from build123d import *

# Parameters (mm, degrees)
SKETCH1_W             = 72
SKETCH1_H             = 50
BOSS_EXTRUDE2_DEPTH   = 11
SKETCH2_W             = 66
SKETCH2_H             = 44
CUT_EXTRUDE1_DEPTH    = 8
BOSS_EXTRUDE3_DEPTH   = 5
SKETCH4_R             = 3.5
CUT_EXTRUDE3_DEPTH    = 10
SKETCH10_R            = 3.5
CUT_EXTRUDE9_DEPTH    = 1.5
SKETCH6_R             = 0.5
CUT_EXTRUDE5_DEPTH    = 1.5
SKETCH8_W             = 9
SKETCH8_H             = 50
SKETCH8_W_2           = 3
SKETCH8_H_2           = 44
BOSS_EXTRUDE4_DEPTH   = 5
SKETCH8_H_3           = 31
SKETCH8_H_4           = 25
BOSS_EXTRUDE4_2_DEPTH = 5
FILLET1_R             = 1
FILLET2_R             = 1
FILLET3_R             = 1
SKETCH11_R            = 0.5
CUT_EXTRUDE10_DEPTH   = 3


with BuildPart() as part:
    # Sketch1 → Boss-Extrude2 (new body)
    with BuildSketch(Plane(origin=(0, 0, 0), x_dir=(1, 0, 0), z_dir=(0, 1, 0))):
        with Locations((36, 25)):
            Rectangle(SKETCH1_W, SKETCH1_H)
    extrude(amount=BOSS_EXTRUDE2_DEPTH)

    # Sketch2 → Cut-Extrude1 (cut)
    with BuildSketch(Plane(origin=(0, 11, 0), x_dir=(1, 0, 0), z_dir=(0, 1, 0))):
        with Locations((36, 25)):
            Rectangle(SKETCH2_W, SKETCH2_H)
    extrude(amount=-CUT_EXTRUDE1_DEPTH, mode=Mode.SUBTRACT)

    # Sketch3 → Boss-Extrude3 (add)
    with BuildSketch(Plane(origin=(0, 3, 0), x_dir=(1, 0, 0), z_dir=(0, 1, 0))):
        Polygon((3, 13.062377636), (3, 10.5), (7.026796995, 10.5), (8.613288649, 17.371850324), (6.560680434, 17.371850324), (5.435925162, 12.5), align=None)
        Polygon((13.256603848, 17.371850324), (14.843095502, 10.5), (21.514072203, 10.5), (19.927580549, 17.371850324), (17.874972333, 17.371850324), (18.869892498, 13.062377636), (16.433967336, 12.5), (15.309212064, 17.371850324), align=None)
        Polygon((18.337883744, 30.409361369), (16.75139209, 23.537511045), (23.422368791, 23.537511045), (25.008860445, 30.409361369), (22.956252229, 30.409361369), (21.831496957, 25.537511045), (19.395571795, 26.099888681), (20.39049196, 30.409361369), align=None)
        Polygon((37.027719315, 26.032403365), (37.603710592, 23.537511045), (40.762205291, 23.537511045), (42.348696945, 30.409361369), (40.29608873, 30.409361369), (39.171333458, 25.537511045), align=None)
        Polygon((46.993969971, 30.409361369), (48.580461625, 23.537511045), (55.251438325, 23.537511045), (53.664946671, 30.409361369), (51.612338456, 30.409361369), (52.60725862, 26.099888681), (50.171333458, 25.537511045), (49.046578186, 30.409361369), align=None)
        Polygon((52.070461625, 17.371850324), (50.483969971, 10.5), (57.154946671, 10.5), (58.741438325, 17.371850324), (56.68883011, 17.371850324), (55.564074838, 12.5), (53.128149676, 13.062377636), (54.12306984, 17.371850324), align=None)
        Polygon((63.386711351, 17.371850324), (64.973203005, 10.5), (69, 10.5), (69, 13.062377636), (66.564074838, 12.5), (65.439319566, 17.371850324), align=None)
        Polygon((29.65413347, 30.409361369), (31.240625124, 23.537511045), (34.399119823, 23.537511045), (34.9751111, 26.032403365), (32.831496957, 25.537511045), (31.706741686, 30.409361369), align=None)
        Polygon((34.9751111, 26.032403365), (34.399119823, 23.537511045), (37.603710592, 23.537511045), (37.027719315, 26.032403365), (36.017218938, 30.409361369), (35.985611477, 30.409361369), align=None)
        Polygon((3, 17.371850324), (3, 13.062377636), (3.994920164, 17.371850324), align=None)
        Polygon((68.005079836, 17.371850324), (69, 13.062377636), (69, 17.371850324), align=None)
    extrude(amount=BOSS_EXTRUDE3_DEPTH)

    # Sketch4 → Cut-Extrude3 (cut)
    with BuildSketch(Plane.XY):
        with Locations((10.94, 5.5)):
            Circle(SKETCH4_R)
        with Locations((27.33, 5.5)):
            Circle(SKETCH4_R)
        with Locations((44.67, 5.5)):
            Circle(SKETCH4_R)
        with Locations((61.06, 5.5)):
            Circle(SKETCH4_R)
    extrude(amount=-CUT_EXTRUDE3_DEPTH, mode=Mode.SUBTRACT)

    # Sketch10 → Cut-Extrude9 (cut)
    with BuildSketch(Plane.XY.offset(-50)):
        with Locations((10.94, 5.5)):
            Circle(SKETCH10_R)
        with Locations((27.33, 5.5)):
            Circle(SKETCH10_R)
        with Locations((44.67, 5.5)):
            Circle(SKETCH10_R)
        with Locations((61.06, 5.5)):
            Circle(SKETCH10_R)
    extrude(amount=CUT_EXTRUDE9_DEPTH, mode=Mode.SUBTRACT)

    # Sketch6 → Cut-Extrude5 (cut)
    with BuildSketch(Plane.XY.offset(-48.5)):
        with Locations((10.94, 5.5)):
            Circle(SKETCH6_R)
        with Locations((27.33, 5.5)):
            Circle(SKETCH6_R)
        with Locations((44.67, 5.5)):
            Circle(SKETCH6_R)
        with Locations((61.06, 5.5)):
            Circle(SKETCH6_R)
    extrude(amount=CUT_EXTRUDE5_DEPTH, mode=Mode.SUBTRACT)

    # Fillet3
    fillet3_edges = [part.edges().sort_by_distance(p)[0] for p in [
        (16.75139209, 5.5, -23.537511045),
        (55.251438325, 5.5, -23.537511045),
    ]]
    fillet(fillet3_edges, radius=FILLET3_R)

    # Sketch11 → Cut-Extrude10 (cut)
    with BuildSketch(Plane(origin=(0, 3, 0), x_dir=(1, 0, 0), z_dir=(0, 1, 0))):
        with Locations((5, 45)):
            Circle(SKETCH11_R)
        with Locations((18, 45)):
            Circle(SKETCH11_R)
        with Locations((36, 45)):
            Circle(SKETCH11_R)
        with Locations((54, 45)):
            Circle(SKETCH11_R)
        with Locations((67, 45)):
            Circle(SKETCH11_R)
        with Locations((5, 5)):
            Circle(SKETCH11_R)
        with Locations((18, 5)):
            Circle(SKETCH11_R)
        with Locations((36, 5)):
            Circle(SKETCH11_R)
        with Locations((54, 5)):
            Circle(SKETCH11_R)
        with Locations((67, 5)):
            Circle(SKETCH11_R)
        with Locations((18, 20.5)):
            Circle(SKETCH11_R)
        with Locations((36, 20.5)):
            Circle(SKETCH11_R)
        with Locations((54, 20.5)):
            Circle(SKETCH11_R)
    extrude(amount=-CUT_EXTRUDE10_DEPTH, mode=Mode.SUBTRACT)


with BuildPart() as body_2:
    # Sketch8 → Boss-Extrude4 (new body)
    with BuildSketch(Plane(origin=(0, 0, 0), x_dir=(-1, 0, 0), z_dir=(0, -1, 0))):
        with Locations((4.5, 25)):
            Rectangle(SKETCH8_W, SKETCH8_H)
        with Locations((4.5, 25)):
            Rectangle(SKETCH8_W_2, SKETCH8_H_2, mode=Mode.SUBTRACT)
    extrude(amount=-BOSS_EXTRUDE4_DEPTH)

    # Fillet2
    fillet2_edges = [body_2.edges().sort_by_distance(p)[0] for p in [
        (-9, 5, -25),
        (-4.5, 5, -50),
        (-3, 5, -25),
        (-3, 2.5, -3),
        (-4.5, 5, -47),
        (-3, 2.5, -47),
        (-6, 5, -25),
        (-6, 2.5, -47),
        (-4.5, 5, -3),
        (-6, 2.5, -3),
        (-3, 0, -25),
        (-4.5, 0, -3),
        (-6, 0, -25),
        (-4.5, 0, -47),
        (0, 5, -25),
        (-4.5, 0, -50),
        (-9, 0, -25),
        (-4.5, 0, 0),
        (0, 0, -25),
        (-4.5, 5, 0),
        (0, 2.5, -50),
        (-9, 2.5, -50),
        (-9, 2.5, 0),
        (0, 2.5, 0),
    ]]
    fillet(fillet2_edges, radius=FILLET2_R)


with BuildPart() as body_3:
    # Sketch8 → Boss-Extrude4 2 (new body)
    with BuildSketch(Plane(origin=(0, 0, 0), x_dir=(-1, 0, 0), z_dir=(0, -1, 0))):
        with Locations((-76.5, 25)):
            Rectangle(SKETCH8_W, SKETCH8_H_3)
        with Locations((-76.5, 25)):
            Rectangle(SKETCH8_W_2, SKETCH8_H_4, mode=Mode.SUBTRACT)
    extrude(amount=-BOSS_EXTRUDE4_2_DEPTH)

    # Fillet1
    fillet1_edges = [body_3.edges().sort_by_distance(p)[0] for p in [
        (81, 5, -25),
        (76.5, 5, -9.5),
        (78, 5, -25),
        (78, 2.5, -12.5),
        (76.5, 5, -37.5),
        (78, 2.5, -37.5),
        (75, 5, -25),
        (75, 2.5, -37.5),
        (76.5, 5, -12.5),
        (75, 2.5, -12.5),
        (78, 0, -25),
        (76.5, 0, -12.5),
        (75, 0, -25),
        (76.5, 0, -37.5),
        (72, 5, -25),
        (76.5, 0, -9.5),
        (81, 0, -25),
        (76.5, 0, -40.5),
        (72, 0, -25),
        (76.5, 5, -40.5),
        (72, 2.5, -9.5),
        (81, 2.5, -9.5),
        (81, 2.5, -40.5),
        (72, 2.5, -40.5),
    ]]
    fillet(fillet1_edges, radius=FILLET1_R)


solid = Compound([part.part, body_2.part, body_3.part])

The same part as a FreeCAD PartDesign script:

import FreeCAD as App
import Part
import Sketcher

V = App.Vector
Q = App.Units.Quantity


def edges_at(feature, points):
    """Names of the edges that pass closest to the given points."""
    edges = feature.Shape.Edges
    near = lambda p: min(range(len(edges)), key=lambda i: edges[i].distToShape(Part.Vertex(*p))[0])
    return sorted({f"Edge{near(p) + 1}" for p in points})

doc = App.newDocument("Part")
body = doc.addObject("PartDesign::Body", "Body")

sketch1 = body.newObject("Sketcher::SketchObject", "Sketch")
sketch1.AttachmentSupport = (doc.getObject("XZ_Plane"), [""])
sketch1.MapMode = "FlatFace"
sketch1.addGeometry([
    Part.LineSegment(V(0, -50, 0), V(0, 0, 0)),
    Part.LineSegment(V(0, 0, 0), V(72, 0, 0)),
    Part.LineSegment(V(72, 0, 0), V(72, -50, 0)),
    Part.LineSegment(V(72, -50, 0), V(0, -50, 0)),
], False)
sketch1.addConstraint([
    Sketcher.Constraint("Coincident", 0, 2, 1, 1),
    Sketcher.Constraint("Coincident", 1, 2, 2, 1),
    Sketcher.Constraint("Coincident", 2, 2, 3, 1),
    Sketcher.Constraint("Coincident", 3, 2, 0, 1),
    Sketcher.Constraint("Vertical", 0),
    Sketcher.Constraint("Horizontal", 1),
    Sketcher.Constraint("Vertical", 2),
    Sketcher.Constraint("Horizontal", 3),
    Sketcher.Constraint("Coincident", 0, 2, -1, 1),
    Sketcher.Constraint("DistanceX", 1, 1, 1, 2, Q("72 mm")),
    Sketcher.Constraint("DistanceY", 0, 1, 0, 2, Q("50 mm")),
])
pad1 = body.newObject("PartDesign::Pad", "Pad")
pad1.Profile = sketch1
pad1.Length = 11
pad1.Reversed = True

sketch2 = body.newObject("Sketcher::SketchObject", "Sketch001")
sketch2.AttachmentSupport = (doc.getObject("XZ_Plane"), [""])
sketch2.MapMode = "FlatFace"
sketch2.AttachmentOffset = App.Placement(V(0, 0, -11), App.Rotation())
sketch2.addGeometry([
    Part.LineSegment(V(3, -47, 0), V(3, -3, 0)),
    Part.LineSegment(V(3, -3, 0), V(69, -3, 0)),
    Part.LineSegment(V(69, -3, 0), V(69, -47, 0)),
    Part.LineSegment(V(69, -47, 0), V(3, -47, 0)),
], False)
sketch2.addConstraint([
    Sketcher.Constraint("Coincident", 0, 2, 1, 1),
    Sketcher.Constraint("Coincident", 1, 2, 2, 1),
    Sketcher.Constraint("Coincident", 2, 2, 3, 1),
    Sketcher.Constraint("Coincident", 3, 2, 0, 1),
    Sketcher.Constraint("Vertical", 0),
    Sketcher.Constraint("Horizontal", 1),
    Sketcher.Constraint("Vertical", 2),
    Sketcher.Constraint("Horizontal", 3),
    Sketcher.Constraint("DistanceX", 1, 1, 1, 2, Q("66 mm")),
    Sketcher.Constraint("DistanceY", 0, 1, 0, 2, Q("44 mm")),
    Sketcher.Constraint("DistanceX", -1, 1, 0, 2, Q("3 mm")),
    Sketcher.Constraint("DistanceY", 0, 2, -1, 1, Q("3 mm")),
])
pocket1 = body.newObject("PartDesign::Pocket", "Pocket")
pocket1.Profile = sketch2
pocket1.Length = 8
pocket1.Reversed = True

sketch3 = body.newObject("Sketcher::SketchObject", "Sketch002")
sketch3.AttachmentSupport = (doc.getObject("XZ_Plane"), [""])
sketch3.MapMode = "FlatFace"
sketch3.AttachmentOffset = App.Placement(V(0, 0, -3), App.Rotation())
sketch3.addGeometry([
    Part.LineSegment(V(3, -13.062378, 0), V(3, -10.5, 0)),
    Part.LineSegment(V(3, -10.5, 0), V(7.026797, -10.5, 0)),
    Part.LineSegment(V(7.026797, -10.5, 0), V(8.613289, -17.37185, 0)),
    Part.LineSegment(V(8.613289, -17.37185, 0), V(6.56068, -17.37185, 0)),
    Part.LineSegment(V(6.56068, -17.37185, 0), V(5.435925, -12.5, 0)),
    Part.LineSegment(V(5.435925, -12.5, 0), V(3, -13.062378, 0)),
    Part.LineSegment(V(13.256604, -17.37185, 0), V(14.843096, -10.5, 0)),
    Part.LineSegment(V(14.843096, -10.5, 0), V(21.514072, -10.5, 0)),
    Part.LineSegment(V(21.514072, -10.5, 0), V(19.927581, -17.37185, 0)),
    Part.LineSegment(V(19.927581, -17.37185, 0), V(17.874972, -17.37185, 0)),
    Part.LineSegment(V(17.874972, -17.37185, 0), V(18.869892, -13.062378, 0)),
    Part.LineSegment(V(18.869892, -13.062378, 0), V(16.433967, -12.5, 0)),
    Part.LineSegment(V(16.433967, -12.5, 0), V(15.309212, -17.37185, 0)),
    Part.LineSegment(V(15.309212, -17.37185, 0), V(13.256604, -17.37185, 0)),
    Part.LineSegment(V(18.337884, -30.409361, 0), V(16.751392, -23.537511, 0)),
    Part.LineSegment(V(16.751392, -23.537511, 0), V(23.422369, -23.537511, 0)),
    Part.LineSegment(V(23.422369, -23.537511, 0), V(25.00886, -30.409361, 0)),
    Part.LineSegment(V(25.00886, -30.409361, 0), V(22.956252, -30.409361, 0)),
    Part.LineSegment(V(22.956252, -30.409361, 0), V(21.831497, -25.537511, 0)),
    Part.LineSegment(V(21.831497, -25.537511, 0), V(19.395572, -26.099889, 0)),
    Part.LineSegment(V(19.395572, -26.099889, 0), V(20.390492, -30.409361, 0)),
    Part.LineSegment(V(20.390492, -30.409361, 0), V(18.337884, -30.409361, 0)),
    Part.LineSegment(V(40.762205, -23.537511, 0), V(42.348697, -30.409361, 0)),
    Part.LineSegment(V(42.348697, -30.409361, 0), V(40.296089, -30.409361, 0)),
    Part.LineSegment(V(40.296089, -30.409361, 0), V(39.171333, -25.537511, 0)),
    Part.LineSegment(V(39.171333, -25.537511, 0), V(37.027719, -26.032403, 0)),
    Part.LineSegment(V(37.027719, -26.032403, 0), V(36.017219, -30.409361, 0)),
    Part.LineSegment(V(36.017219, -30.409361, 0), V(35.985611, -30.409361, 0)),
    Part.LineSegment(V(35.985611, -30.409361, 0), V(34.975111, -26.032403, 0)),
    Part.LineSegment(V(34.975111, -26.032403, 0), V(32.831497, -25.537511, 0)),
    Part.LineSegment(V(32.831497, -25.537511, 0), V(31.706742, -30.409361, 0)),
    Part.LineSegment(V(31.706742, -30.409361, 0), V(29.654133, -30.409361, 0)),
    Part.LineSegment(V(29.654133, -30.409361, 0), V(31.240625, -23.537511, 0)),
    Part.LineSegment(V(31.240625, -23.537511, 0), V(40.762205, -23.537511, 0)),
    Part.LineSegment(V(46.99397, -30.409361, 0), V(48.580462, -23.537511, 0)),
    Part.LineSegment(V(48.580462, -23.537511, 0), V(55.251438, -23.537511, 0)),
    Part.LineSegment(V(55.251438, -23.537511, 0), V(53.664947, -30.409361, 0)),
    Part.LineSegment(V(53.664947, -30.409361, 0), V(51.612338, -30.409361, 0)),
    Part.LineSegment(V(51.612338, -30.409361, 0), V(52.607259, -26.099889, 0)),
    Part.LineSegment(V(52.607259, -26.099889, 0), V(50.171333, -25.537511, 0)),
    Part.LineSegment(V(50.171333, -25.537511, 0), V(49.046578, -30.409361, 0)),
    Part.LineSegment(V(49.046578, -30.409361, 0), V(46.99397, -30.409361, 0)),
    Part.LineSegment(V(52.070462, -17.37185, 0), V(50.48397, -10.5, 0)),
    Part.LineSegment(V(50.48397, -10.5, 0), V(57.154947, -10.5, 0)),
    Part.LineSegment(V(57.154947, -10.5, 0), V(58.741438, -17.37185, 0)),
    Part.LineSegment(V(58.741438, -17.37185, 0), V(56.68883, -17.37185, 0)),
    Part.LineSegment(V(56.68883, -17.37185, 0), V(55.564075, -12.5, 0)),
    Part.LineSegment(V(55.564075, -12.5, 0), V(53.12815, -13.062378, 0)),
    Part.LineSegment(V(53.12815, -13.062378, 0), V(54.12307, -17.37185, 0)),
    Part.LineSegment(V(54.12307, -17.37185, 0), V(52.070462, -17.37185, 0)),
    Part.LineSegment(V(63.386711, -17.37185, 0), V(64.973203, -10.5, 0)),
    Part.LineSegment(V(64.973203, -10.5, 0), V(69, -10.5, 0)),
    Part.LineSegment(V(69, -10.5, 0), V(69, -13.062378, 0)),
    Part.LineSegment(V(69, -13.062378, 0), V(66.564075, -12.5, 0)),
    Part.LineSegment(V(66.564075, -12.5, 0), V(65.43932, -17.37185, 0)),
    Part.LineSegment(V(65.43932, -17.37185, 0), V(63.386711, -17.37185, 0)),
    Part.LineSegment(V(3, -17.37185, 0), V(3, -13.062378, 0)),
    Part.LineSegment(V(3, -13.062378, 0), V(3.99492, -17.37185, 0)),
    Part.LineSegment(V(3.99492, -17.37185, 0), V(3, -17.37185, 0)),
    Part.LineSegment(V(68.00508, -17.37185, 0), V(69, -13.062378, 0)),
    Part.LineSegment(V(69, -13.062378, 0), V(69, -17.37185, 0)),
    Part.LineSegment(V(69, -17.37185, 0), V(68.00508, -17.37185, 0)),
], False)
sketch3.addConstraint([
    Sketcher.Constraint("Coincident", 0, 2, 1, 1),
    Sketcher.Constraint("Coincident", 1, 2, 2, 1),
    Sketcher.Constraint("Coincident", 2, 2, 3, 1),
    Sketcher.Constraint("Coincident", 3, 2, 4, 1),
    Sketcher.Constraint("Coincident", 4, 2, 5, 1),
    Sketcher.Constraint("Coincident", 5, 2, 0, 1),
    Sketcher.Constraint("Coincident", 6, 2, 7, 1),
    Sketcher.Constraint("Coincident", 7, 2, 8, 1),
    Sketcher.Constraint("Coincident", 8, 2, 9, 1),
    Sketcher.Constraint("Coincident", 9, 2, 10, 1),
    Sketcher.Constraint("Coincident", 10, 2, 11, 1),
    Sketcher.Constraint("Coincident", 11, 2, 12, 1),
    Sketcher.Constraint("Coincident", 12, 2, 13, 1),
    Sketcher.Constraint("Coincident", 13, 2, 6, 1),
    Sketcher.Constraint("Coincident", 14, 2, 15, 1),
    Sketcher.Constraint("Coincident", 15, 2, 16, 1),
    Sketcher.Constraint("Coincident", 16, 2, 17, 1),
    Sketcher.Constraint("Coincident", 17, 2, 18, 1),
    Sketcher.Constraint("Coincident", 18, 2, 19, 1),
    Sketcher.Constraint("Coincident", 19, 2, 20, 1),
    Sketcher.Constraint("Coincident", 20, 2, 21, 1),
    Sketcher.Constraint("Coincident", 21, 2, 14, 1),
    Sketcher.Constraint("Coincident", 22, 2, 23, 1),
    Sketcher.Constraint("Coincident", 23, 2, 24, 1),
    Sketcher.Constraint("Coincident", 24, 2, 25, 1),
    Sketcher.Constraint("Coincident", 25, 2, 26, 1),
    Sketcher.Constraint("Coincident", 26, 2, 27, 1),
    Sketcher.Constraint("Coincident", 27, 2, 28, 1),
    Sketcher.Constraint("Coincident", 28, 2, 29, 1),
    Sketcher.Constraint("Coincident", 29, 2, 30, 1),
    Sketcher.Constraint("Coincident", 30, 2, 31, 1),
    Sketcher.Constraint("Coincident", 31, 2, 32, 1),
    Sketcher.Constraint("Coincident", 32, 2, 33, 1),
    Sketcher.Constraint("Coincident", 33, 2, 22, 1),
    Sketcher.Constraint("Coincident", 34, 2, 35, 1),
    Sketcher.Constraint("Coincident", 35, 2, 36, 1),
    Sketcher.Constraint("Coincident", 36, 2, 37, 1),
    Sketcher.Constraint("Coincident", 37, 2, 38, 1),
    Sketcher.Constraint("Coincident", 38, 2, 39, 1),
    Sketcher.Constraint("Coincident", 39, 2, 40, 1),
    Sketcher.Constraint("Coincident", 40, 2, 41, 1),
    Sketcher.Constraint("Coincident", 41, 2, 34, 1),
    Sketcher.Constraint("Coincident", 42, 2, 43, 1),
    Sketcher.Constraint("Coincident", 43, 2, 44, 1),
    Sketcher.Constraint("Coincident", 44, 2, 45, 1),
    Sketcher.Constraint("Coincident", 45, 2, 46, 1),
    Sketcher.Constraint("Coincident", 46, 2, 47, 1),
    Sketcher.Constraint("Coincident", 47, 2, 48, 1),
    Sketcher.Constraint("Coincident", 48, 2, 49, 1),
    Sketcher.Constraint("Coincident", 49, 2, 42, 1),
    Sketcher.Constraint("Coincident", 50, 2, 51, 1),
    Sketcher.Constraint("Coincident", 51, 2, 52, 1),
    Sketcher.Constraint("Coincident", 52, 2, 53, 1),
    Sketcher.Constraint("Coincident", 53, 2, 54, 1),
    Sketcher.Constraint("Coincident", 54, 2, 55, 1),
    Sketcher.Constraint("Coincident", 55, 2, 50, 1),
    Sketcher.Constraint("Coincident", 56, 2, 57, 1),
    Sketcher.Constraint("Coincident", 57, 2, 58, 1),
    Sketcher.Constraint("Coincident", 58, 2, 56, 1),
    Sketcher.Constraint("Coincident", 59, 2, 60, 1),
    Sketcher.Constraint("Coincident", 60, 2, 61, 1),
    Sketcher.Constraint("Coincident", 61, 2, 59, 1),
    Sketcher.Constraint("Vertical", 0),
    Sketcher.Constraint("Horizontal", 1),
    Sketcher.Constraint("Horizontal", 3),
    Sketcher.Constraint("Horizontal", 7),
    Sketcher.Constraint("Horizontal", 9),
    Sketcher.Constraint("Horizontal", 13),
    Sketcher.Constraint("Horizontal", 15),
    Sketcher.Constraint("Horizontal", 17),
    Sketcher.Constraint("Horizontal", 21),
    Sketcher.Constraint("Horizontal", 23),
    Sketcher.Constraint("Horizontal", 27),
    Sketcher.Constraint("Horizontal", 31),
    Sketcher.Constraint("Horizontal", 33),
    Sketcher.Constraint("Horizontal", 35),
    Sketcher.Constraint("Horizontal", 37),
    Sketcher.Constraint("Horizontal", 41),
    Sketcher.Constraint("Horizontal", 43),
    Sketcher.Constraint("Horizontal", 45),
    Sketcher.Constraint("Horizontal", 49),
    Sketcher.Constraint("Horizontal", 51),
    Sketcher.Constraint("Vertical", 52),
    Sketcher.Constraint("Horizontal", 55),
    Sketcher.Constraint("Vertical", 56),
    Sketcher.Constraint("Horizontal", 58),
    Sketcher.Constraint("Vertical", 60),
    Sketcher.Constraint("Horizontal", 61),
    Sketcher.Constraint("Coincident", 56, 2, 5, 2),
    Sketcher.Constraint("Coincident", 59, 2, 52, 2),
    Sketcher.Constraint("Parallel", 2, 4),
    Sketcher.Constraint("Perpendicular", 4, 5),
    Sketcher.Constraint("Parallel", 6, 8),
    Sketcher.Constraint("Parallel", 8, 10),
    Sketcher.Constraint("Perpendicular", 10, 11),
    Sketcher.Constraint("Perpendicular", 11, 12),
    Sketcher.Constraint("Perpendicular", 5, 14),
    Sketcher.Constraint("Parallel", 14, 16),
    Sketcher.Constraint("Parallel", 16, 18),
    Sketcher.Constraint("Perpendicular", 18, 19),
    Sketcher.Constraint("Perpendicular", 19, 20),
    Sketcher.Constraint("Parallel", 20, 22),
    Sketcher.Constraint("Parallel", 22, 24),
    Sketcher.Constraint("Perpendicular", 24, 25),
    Sketcher.Constraint("Parallel", 12, 26),
    Sketcher.Constraint("Perpendicular", 25, 28),
    Sketcher.Constraint("Perpendicular", 26, 29),
    Sketcher.Constraint("Perpendicular", 29, 30),
    Sketcher.Constraint("Parallel", 30, 32),
    Sketcher.Constraint("Parallel", 32, 34),
    Sketcher.Constraint("Parallel", 34, 36),
    Sketcher.Constraint("Parallel", 36, 38),
    Sketcher.Constraint("Perpendicular", 38, 39),
    Sketcher.Constraint("Perpendicular", 39, 40),
    Sketcher.Constraint("Parallel", 28, 42),
    Sketcher.Constraint("Parallel", 42, 44),
    Sketcher.Constraint("Parallel", 44, 46),
    Sketcher.Constraint("Perpendicular", 46, 47),
    Sketcher.Constraint("Perpendicular", 47, 48),
    Sketcher.Constraint("Parallel", 40, 50),
    Sketcher.Constraint("Perpendicular", 50, 53),
    Sketcher.Constraint("Perpendicular", 53, 54),
    Sketcher.Constraint("Parallel", 48, 57),
    Sketcher.Constraint("Parallel", 54, 59),
    Sketcher.Constraint("Horizontal", 1, 2, 6, 2),
    Sketcher.Constraint("Horizontal", 3, 2, 8, 2),
    Sketcher.Constraint("Horizontal", 5, 2, 10, 2),
    Sketcher.Constraint("Horizontal", 4, 2, 11, 2),
    Sketcher.Constraint("Horizontal", 9, 2, 12, 2),
    Sketcher.Constraint("Horizontal", 17, 2, 20, 2),
    Sketcher.Constraint("Horizontal", 21, 2, 22, 2),
    Sketcher.Constraint("Horizontal", 18, 2, 24, 2),
    Sketcher.Constraint("Horizontal", 23, 2, 26, 2),
    Sketcher.Constraint("Horizontal", 25, 2, 28, 2),
    Sketcher.Constraint("Horizontal", 24, 2, 29, 2),
    Sketcher.Constraint("Horizontal", 27, 2, 30, 2),
    Sketcher.Constraint("Horizontal", 15, 2, 32, 2),
    Sketcher.Constraint("Horizontal", 33, 2, 34, 2),
    Sketcher.Constraint("Horizontal", 31, 2, 36, 2),
    Sketcher.Constraint("Horizontal", 19, 2, 38, 2),
    Sketcher.Constraint("Horizontal", 29, 2, 39, 2),
    Sketcher.Constraint("Horizontal", 37, 2, 40, 2),
    Sketcher.Constraint("Horizontal", 7, 2, 42, 2),
    Sketcher.Constraint("Horizontal", 13, 2, 44, 2),
    Sketcher.Constraint("Horizontal", 11, 2, 46, 2),
    Sketcher.Constraint("Horizontal", 10, 2, 47, 2),
    Sketcher.Constraint("Horizontal", 45, 2, 48, 2),
    Sketcher.Constraint("Horizontal", 43, 2, 50, 2),
    Sketcher.Constraint("Horizontal", 47, 2, 52, 2),
    Sketcher.Constraint("Horizontal", 46, 2, 53, 2),
    Sketcher.Constraint("Horizontal", 49, 2, 54, 2),
    Sketcher.Constraint("Horizontal", 55, 2, 57, 2),
    Sketcher.Constraint("Horizontal", 58, 2, 60, 2),
    Sketcher.Constraint("Equal", 3, 9),
    Sketcher.Constraint("Equal", 9, 13),
    Sketcher.Constraint("Equal", 7, 15),
    Sketcher.Constraint("Equal", 13, 17),
    Sketcher.Constraint("Equal", 17, 21),
    Sketcher.Constraint("Equal", 21, 23),
    Sketcher.Constraint("Equal", 23, 31),
    Sketcher.Constraint("Equal", 15, 35),
    Sketcher.Constraint("Equal", 31, 37),
    Sketcher.Constraint("Equal", 37, 41),
    Sketcher.Constraint("Equal", 35, 43),
    Sketcher.Constraint("Equal", 41, 45),
    Sketcher.Constraint("Equal", 1, 51),
    Sketcher.Constraint("Equal", 8, 14),
    Sketcher.Constraint("Equal", 12, 18),
    Sketcher.Constraint("Angle", 2, Q("-77 deg")),
    Sketcher.Constraint("Distance", 4, Q("5 mm")),
    Sketcher.Constraint("DistanceX", -1, 1, 0, 2, Q("3 mm")),
    Sketcher.Constraint("DistanceX", -1, 1, 51, 2, Q("69 mm")),
    Sketcher.Constraint("Distance", 5, Q("2.5 mm")),
    Sketcher.Constraint("Distance", 25, Q("2.2 mm")),
    Sketcher.Constraint("DistanceY", 0, 2, -1, 1, Q("10.5 mm")),
    Sketcher.Constraint("DistanceY", 4, 2, -1, 1, Q("12.5 mm")),
    Sketcher.Constraint("DistanceX", 3, 2, 3, 1, Q("2.052608 mm")),
    Sketcher.Constraint("DistanceX", 33, 1, 33, 2, Q("9.52158 mm")),
    Sketcher.Constraint("DistanceX", -1, 1, 8, 2, Q("19.927581 mm")),
    Sketcher.Constraint("DistanceY", 14, 2, -1, 1, Q("23.537511 mm")),
    Sketcher.Constraint("DistanceX", -1, 1, 15, 2, Q("23.422369 mm")),
    Sketcher.Constraint("DistanceX", -1, 1, 23, 2, Q("40.296089 mm")),
    Sketcher.Constraint("DistanceX", -1, 1, 34, 2, Q("48.580462 mm")),
    Sketcher.Constraint("DistanceX", -1, 1, 42, 2, Q("50.48397 mm")),
])
pad2 = body.newObject("PartDesign::Pad", "Pad001")
pad2.Profile = sketch3
pad2.Length = 5
pad2.Reversed = True

sketch4 = body.newObject("Sketcher::SketchObject", "Sketch003")
sketch4.AttachmentSupport = (doc.getObject("XY_Plane"), [""])
sketch4.MapMode = "FlatFace"
sketch4.addGeometry([
    Part.Circle(V(10.94, 5.5, 0), V(0, 0, 1), 3.5),
    Part.Circle(V(27.33, 5.5, 0), V(0, 0, 1), 3.5),
    Part.Circle(V(44.67, 5.5, 0), V(0, 0, 1), 3.5),
    Part.Circle(V(61.06, 5.5, 0), V(0, 0, 1), 3.5),
], False)
sketch4.addConstraint([
    Sketcher.Constraint("Equal", 0, 1),
    Sketcher.Constraint("Equal", 1, 2),
    Sketcher.Constraint("Equal", 2, 3),
    Sketcher.Constraint("Horizontal", 0, 3, 1, 3),
    Sketcher.Constraint("Horizontal", 1, 3, 2, 3),
    Sketcher.Constraint("Horizontal", 2, 3, 3, 3),
    Sketcher.Constraint("Diameter", 0, Q("7 mm")),
    Sketcher.Constraint("DistanceY", -1, 1, 0, 3, Q("5.5 mm")),
    Sketcher.Constraint("DistanceX", -1, 1, 0, 3, Q("10.94 mm")),
    Sketcher.Constraint("DistanceX", -1, 1, 1, 3, Q("27.33 mm")),
    Sketcher.Constraint("DistanceX", -1, 1, 2, 3, Q("44.67 mm")),
    Sketcher.Constraint("DistanceX", -1, 1, 3, 3, Q("61.06 mm")),
])
pocket2 = body.newObject("PartDesign::Pocket", "Pocket001")
pocket2.Profile = sketch4
pocket2.Length = 10

sketch5 = body.newObject("Sketcher::SketchObject", "Sketch004")
sketch5.AttachmentSupport = (doc.getObject("XY_Plane"), [""])
sketch5.MapMode = "FlatFace"
sketch5.AttachmentOffset = App.Placement(V(0, 0, -50), App.Rotation())
sketch5.addGeometry([
    Part.Circle(V(10.94, 5.5, 0), V(0, 0, 1), 3.5),
    Part.Circle(V(27.33, 5.5, 0), V(0, 0, 1), 3.5),
    Part.Circle(V(44.67, 5.5, 0), V(0, 0, 1), 3.5),
    Part.Circle(V(61.06, 5.5, 0), V(0, 0, 1), 3.5),
], False)
sketch5.addConstraint([
    Sketcher.Constraint("Equal", 0, 1),
    Sketcher.Constraint("Equal", 1, 2),
    Sketcher.Constraint("Equal", 2, 3),
    Sketcher.Constraint("Horizontal", 0, 3, 1, 3),
    Sketcher.Constraint("Horizontal", 1, 3, 2, 3),
    Sketcher.Constraint("Horizontal", 2, 3, 3, 3),
    Sketcher.Constraint("Diameter", 0, Q("7 mm")),
    Sketcher.Constraint("DistanceY", -1, 1, 0, 3, Q("5.5 mm")),
    Sketcher.Constraint("DistanceX", -1, 1, 0, 3, Q("10.94 mm")),
    Sketcher.Constraint("DistanceX", -1, 1, 1, 3, Q("27.33 mm")),
    Sketcher.Constraint("DistanceX", -1, 1, 2, 3, Q("44.67 mm")),
    Sketcher.Constraint("DistanceX", -1, 1, 3, 3, Q("61.06 mm")),
])
pocket3 = body.newObject("PartDesign::Pocket", "Pocket002")
pocket3.Profile = sketch5
pocket3.Length = 1.5
pocket3.Reversed = True

sketch6 = body.newObject("Sketcher::SketchObject", "Sketch005")
sketch6.AttachmentSupport = (doc.getObject("XY_Plane"), [""])
sketch6.MapMode = "FlatFace"
sketch6.AttachmentOffset = App.Placement(V(0, 0, -48.5), App.Rotation())
sketch6.addGeometry([
    Part.Circle(V(10.94, 5.5, 0), V(0, 0, 1), 0.5),
    Part.Circle(V(27.33, 5.5, 0), V(0, 0, 1), 0.5),
    Part.Circle(V(44.67, 5.5, 0), V(0, 0, 1), 0.5),
    Part.Circle(V(61.06, 5.5, 0), V(0, 0, 1), 0.5),
], False)
sketch6.addConstraint([
    Sketcher.Constraint("Equal", 0, 1),
    Sketcher.Constraint("Equal", 1, 2),
    Sketcher.Constraint("Equal", 2, 3),
    Sketcher.Constraint("Horizontal", 0, 3, 1, 3),
    Sketcher.Constraint("Horizontal", 1, 3, 2, 3),
    Sketcher.Constraint("Horizontal", 2, 3, 3, 3),
    Sketcher.Constraint("Diameter", 0, Q("1 mm")),
    Sketcher.Constraint("DistanceY", -1, 1, 0, 3, Q("5.5 mm")),
    Sketcher.Constraint("DistanceX", -1, 1, 0, 3, Q("10.94 mm")),
    Sketcher.Constraint("DistanceX", -1, 1, 1, 3, Q("27.33 mm")),
    Sketcher.Constraint("DistanceX", -1, 1, 2, 3, Q("44.67 mm")),
    Sketcher.Constraint("DistanceX", -1, 1, 3, 3, Q("61.06 mm")),
])
pocket4 = body.newObject("PartDesign::Pocket", "Pocket003")
pocket4.Profile = sketch6
pocket4.Length = 1.5
pocket4.Reversed = True
doc.recompute()

fillet = body.newObject("PartDesign::Fillet", "Fillet")
fillet.Base = (pocket4, edges_at(pocket4, [(16.751, 5.5, -23.538), (55.251, 5.5, -23.538)]))
fillet.Radius = 1

sketch7 = body.newObject("Sketcher::SketchObject", "Sketch006")
sketch7.AttachmentSupport = (doc.getObject("XZ_Plane"), [""])
sketch7.MapMode = "FlatFace"
sketch7.AttachmentOffset = App.Placement(V(0, 0, -3), App.Rotation())
sketch7.addGeometry([
    Part.Circle(V(5, -45, 0), V(0, 0, 1), 0.5),
    Part.Circle(V(18, -45, 0), V(0, 0, 1), 0.5),
    Part.Circle(V(36, -45, 0), V(0, 0, 1), 0.5),
    Part.Circle(V(54, -45, 0), V(0, 0, 1), 0.5),
    Part.Circle(V(67, -45, 0), V(0, 0, 1), 0.5),
    Part.Circle(V(5, -5, 0), V(0, 0, 1), 0.5),
    Part.Circle(V(18, -5, 0), V(0, 0, 1), 0.5),
    Part.Circle(V(36, -5, 0), V(0, 0, 1), 0.5),
    Part.Circle(V(54, -5, 0), V(0, 0, 1), 0.5),
    Part.Circle(V(67, -5, 0), V(0, 0, 1), 0.5),
    Part.Circle(V(18, -20.5, 0), V(0, 0, 1), 0.5),
    Part.Circle(V(36, -20.5, 0), V(0, 0, 1), 0.5),
    Part.Circle(V(54, -20.5, 0), V(0, 0, 1), 0.5),
], False)
sketch7.addConstraint([
    Sketcher.Constraint("Equal", 0, 1),
    Sketcher.Constraint("Equal", 1, 2),
    Sketcher.Constraint("Equal", 2, 3),
    Sketcher.Constraint("Equal", 3, 4),
    Sketcher.Constraint("Equal", 4, 5),
    Sketcher.Constraint("Equal", 5, 6),
    Sketcher.Constraint("Equal", 6, 7),
    Sketcher.Constraint("Equal", 7, 8),
    Sketcher.Constraint("Equal", 8, 9),
    Sketcher.Constraint("Equal", 9, 10),
    Sketcher.Constraint("Equal", 10, 11),
    Sketcher.Constraint("Equal", 11, 12),
    Sketcher.Constraint("Horizontal", 0, 3, 1, 3),
    Sketcher.Constraint("Horizontal", 1, 3, 2, 3),
    Sketcher.Constraint("Horizontal", 2, 3, 3, 3),
    Sketcher.Constraint("Horizontal", 3, 3, 4, 3),
    Sketcher.Constraint("Horizontal", 5, 3, 6, 3),
    Sketcher.Constraint("Horizontal", 6, 3, 7, 3),
    Sketcher.Constraint("Horizontal", 7, 3, 8, 3),
    Sketcher.Constraint("Horizontal", 8, 3, 9, 3),
    Sketcher.Constraint("Horizontal", 10, 3, 11, 3),
    Sketcher.Constraint("Horizontal", 11, 3, 12, 3),
    Sketcher.Constraint("Vertical", 0, 3, 5, 3),
    Sketcher.Constraint("Vertical", 1, 3, 6, 3),
    Sketcher.Constraint("Vertical", 2, 3, 7, 3),
    Sketcher.Constraint("Vertical", 3, 3, 8, 3),
    Sketcher.Constraint("Vertical", 4, 3, 9, 3),
    Sketcher.Constraint("Vertical", 6, 3, 10, 3),
    Sketcher.Constraint("Vertical", 7, 3, 11, 3),
    Sketcher.Constraint("Vertical", 8, 3, 12, 3),
    Sketcher.Constraint("Diameter", 0, Q("1 mm")),
    Sketcher.Constraint("DistanceX", -1, 1, 0, 3, Q("5 mm")),
    Sketcher.Constraint("DistanceY", 0, 3, -1, 1, Q("45 mm")),
    Sketcher.Constraint("DistanceX", -1, 1, 1, 3, Q("18 mm")),
    Sketcher.Constraint("DistanceX", -1, 1, 2, 3, Q("36 mm")),
    Sketcher.Constraint("DistanceX", -1, 1, 3, 3, Q("54 mm")),
    Sketcher.Constraint("DistanceX", -1, 1, 4, 3, Q("67 mm")),
    Sketcher.Constraint("DistanceY", 5, 3, -1, 1, Q("5 mm")),
    Sketcher.Constraint("DistanceY", 10, 3, -1, 1, Q("20.5 mm")),
])
pocket5 = body.newObject("PartDesign::Pocket", "Pocket004")
pocket5.Profile = sketch7
pocket5.Length = 3
pocket5.Reversed = True
body2 = doc.addObject("PartDesign::Body", "Body001")

sketch8 = body2.newObject("Sketcher::SketchObject", "Sketch007")
sketch8.AttachmentSupport = (doc.getObject("XZ_Plane001"), [""])
sketch8.MapMode = "FlatFace"
sketch8.addGeometry([
    Part.LineSegment(V(0, -50, 0), V(0, 0, 0)),
    Part.LineSegment(V(0, 0, 0), V(-9, 0, 0)),
    Part.LineSegment(V(-9, 0, 0), V(-9, -50, 0)),
    Part.LineSegment(V(-9, -50, 0), V(0, -50, 0)),
    Part.LineSegment(V(-6, -3, 0), V(-3, -3, 0)),
    Part.LineSegment(V(-3, -3, 0), V(-3, -47, 0)),
    Part.LineSegment(V(-3, -47, 0), V(-6, -47, 0)),
    Part.LineSegment(V(-6, -47, 0), V(-6, -3, 0)),
], False)
sketch8.addConstraint([
    Sketcher.Constraint("Coincident", 0, 2, 1, 1),
    Sketcher.Constraint("Coincident", 1, 2, 2, 1),
    Sketcher.Constraint("Coincident", 2, 2, 3, 1),
    Sketcher.Constraint("Coincident", 3, 2, 0, 1),
    Sketcher.Constraint("Coincident", 4, 2, 5, 1),
    Sketcher.Constraint("Coincident", 5, 2, 6, 1),
    Sketcher.Constraint("Coincident", 6, 2, 7, 1),
    Sketcher.Constraint("Coincident", 7, 2, 4, 1),
    Sketcher.Constraint("Vertical", 0),
    Sketcher.Constraint("Horizontal", 1),
    Sketcher.Constraint("Vertical", 2),
    Sketcher.Constraint("Horizontal", 3),
    Sketcher.Constraint("Horizontal", 4),
    Sketcher.Constraint("Vertical", 5),
    Sketcher.Constraint("Horizontal", 6),
    Sketcher.Constraint("Vertical", 7),
    Sketcher.Constraint("Coincident", 0, 2, -1, 1),
    Sketcher.Constraint("DistanceX", 1, 2, 1, 1, Q("9 mm")),
    Sketcher.Constraint("DistanceX", 4, 1, 4, 2, Q("3 mm")),
    Sketcher.Constraint("DistanceY", 0, 1, 0, 2, Q("50 mm")),
    Sketcher.Constraint("DistanceY", 5, 2, 5, 1, Q("44 mm")),
    Sketcher.Constraint("DistanceX", 4, 2, -1, 1, Q("3 mm")),
    Sketcher.Constraint("DistanceY", 4, 2, -1, 1, Q("3 mm")),
])
pad3 = body2.newObject("PartDesign::Pad", "Pad002")
pad3.Profile = sketch8
pad3.Length = 5
pad3.Reversed = True
doc.recompute()

fillet2 = body2.newObject("PartDesign::Fillet", "Fillet001")
fillet2.Base = (pad3, ["Edge1"])
fillet2.UseAllEdges = True
fillet2.Radius = 1
body3 = doc.addObject("PartDesign::Body", "Body002")

sketch9 = body3.newObject("Sketcher::SketchObject", "Sketch008")
sketch9.AttachmentSupport = (doc.getObject("XZ_Plane002"), [""])
sketch9.MapMode = "FlatFace"
sketch9.addGeometry([
    Part.LineSegment(V(81, -40.5, 0), V(81, -9.5, 0)),
    Part.LineSegment(V(81, -9.5, 0), V(72, -9.5, 0)),
    Part.LineSegment(V(72, -9.5, 0), V(72, -40.5, 0)),
    Part.LineSegment(V(72, -40.5, 0), V(81, -40.5, 0)),
    Part.LineSegment(V(75, -12.5, 0), V(78, -12.5, 0)),
    Part.LineSegment(V(78, -12.5, 0), V(78, -37.5, 0)),
    Part.LineSegment(V(78, -37.5, 0), V(75, -37.5, 0)),
    Part.LineSegment(V(75, -37.5, 0), V(75, -12.5, 0)),
], False)
sketch9.addConstraint([
    Sketcher.Constraint("Coincident", 0, 2, 1, 1),
    Sketcher.Constraint("Coincident", 1, 2, 2, 1),
    Sketcher.Constraint("Coincident", 2, 2, 3, 1),
    Sketcher.Constraint("Coincident", 3, 2, 0, 1),
    Sketcher.Constraint("Coincident", 4, 2, 5, 1),
    Sketcher.Constraint("Coincident", 5, 2, 6, 1),
    Sketcher.Constraint("Coincident", 6, 2, 7, 1),
    Sketcher.Constraint("Coincident", 7, 2, 4, 1),
    Sketcher.Constraint("Vertical", 0),
    Sketcher.Constraint("Horizontal", 1),
    Sketcher.Constraint("Vertical", 2),
    Sketcher.Constraint("Horizontal", 3),
    Sketcher.Constraint("Horizontal", 4),
    Sketcher.Constraint("Vertical", 5),
    Sketcher.Constraint("Horizontal", 6),
    Sketcher.Constraint("Vertical", 7),
    Sketcher.Constraint("DistanceX", 1, 2, 1, 1, Q("9 mm")),
    Sketcher.Constraint("DistanceX", 4, 1, 4, 2, Q("3 mm")),
    Sketcher.Constraint("DistanceY", 0, 1, 0, 2, Q("31 mm")),
    Sketcher.Constraint("DistanceY", 5, 2, 5, 1, Q("25 mm")),
    Sketcher.Constraint("DistanceX", -1, 1, 0, 2, Q("81 mm")),
    Sketcher.Constraint("DistanceX", -1, 1, 4, 2, Q("78 mm")),
    Sketcher.Constraint("DistanceY", 4, 2, 0, 2, Q("3 mm")),
    Sketcher.Constraint("DistanceY", 0, 2, -1, 1, Q("9.5 mm")),
])
pad4 = body3.newObject("PartDesign::Pad", "Pad003")
pad4.Profile = sketch9
pad4.Length = 5
pad4.Reversed = True
doc.recompute()

fillet3 = body3.newObject("PartDesign::Fillet", "Fillet002")
fillet3.Base = (pad4, ["Edge1"])
fillet3.UseAllEdges = True
fillet3.Radius = 1

doc.recompute()
